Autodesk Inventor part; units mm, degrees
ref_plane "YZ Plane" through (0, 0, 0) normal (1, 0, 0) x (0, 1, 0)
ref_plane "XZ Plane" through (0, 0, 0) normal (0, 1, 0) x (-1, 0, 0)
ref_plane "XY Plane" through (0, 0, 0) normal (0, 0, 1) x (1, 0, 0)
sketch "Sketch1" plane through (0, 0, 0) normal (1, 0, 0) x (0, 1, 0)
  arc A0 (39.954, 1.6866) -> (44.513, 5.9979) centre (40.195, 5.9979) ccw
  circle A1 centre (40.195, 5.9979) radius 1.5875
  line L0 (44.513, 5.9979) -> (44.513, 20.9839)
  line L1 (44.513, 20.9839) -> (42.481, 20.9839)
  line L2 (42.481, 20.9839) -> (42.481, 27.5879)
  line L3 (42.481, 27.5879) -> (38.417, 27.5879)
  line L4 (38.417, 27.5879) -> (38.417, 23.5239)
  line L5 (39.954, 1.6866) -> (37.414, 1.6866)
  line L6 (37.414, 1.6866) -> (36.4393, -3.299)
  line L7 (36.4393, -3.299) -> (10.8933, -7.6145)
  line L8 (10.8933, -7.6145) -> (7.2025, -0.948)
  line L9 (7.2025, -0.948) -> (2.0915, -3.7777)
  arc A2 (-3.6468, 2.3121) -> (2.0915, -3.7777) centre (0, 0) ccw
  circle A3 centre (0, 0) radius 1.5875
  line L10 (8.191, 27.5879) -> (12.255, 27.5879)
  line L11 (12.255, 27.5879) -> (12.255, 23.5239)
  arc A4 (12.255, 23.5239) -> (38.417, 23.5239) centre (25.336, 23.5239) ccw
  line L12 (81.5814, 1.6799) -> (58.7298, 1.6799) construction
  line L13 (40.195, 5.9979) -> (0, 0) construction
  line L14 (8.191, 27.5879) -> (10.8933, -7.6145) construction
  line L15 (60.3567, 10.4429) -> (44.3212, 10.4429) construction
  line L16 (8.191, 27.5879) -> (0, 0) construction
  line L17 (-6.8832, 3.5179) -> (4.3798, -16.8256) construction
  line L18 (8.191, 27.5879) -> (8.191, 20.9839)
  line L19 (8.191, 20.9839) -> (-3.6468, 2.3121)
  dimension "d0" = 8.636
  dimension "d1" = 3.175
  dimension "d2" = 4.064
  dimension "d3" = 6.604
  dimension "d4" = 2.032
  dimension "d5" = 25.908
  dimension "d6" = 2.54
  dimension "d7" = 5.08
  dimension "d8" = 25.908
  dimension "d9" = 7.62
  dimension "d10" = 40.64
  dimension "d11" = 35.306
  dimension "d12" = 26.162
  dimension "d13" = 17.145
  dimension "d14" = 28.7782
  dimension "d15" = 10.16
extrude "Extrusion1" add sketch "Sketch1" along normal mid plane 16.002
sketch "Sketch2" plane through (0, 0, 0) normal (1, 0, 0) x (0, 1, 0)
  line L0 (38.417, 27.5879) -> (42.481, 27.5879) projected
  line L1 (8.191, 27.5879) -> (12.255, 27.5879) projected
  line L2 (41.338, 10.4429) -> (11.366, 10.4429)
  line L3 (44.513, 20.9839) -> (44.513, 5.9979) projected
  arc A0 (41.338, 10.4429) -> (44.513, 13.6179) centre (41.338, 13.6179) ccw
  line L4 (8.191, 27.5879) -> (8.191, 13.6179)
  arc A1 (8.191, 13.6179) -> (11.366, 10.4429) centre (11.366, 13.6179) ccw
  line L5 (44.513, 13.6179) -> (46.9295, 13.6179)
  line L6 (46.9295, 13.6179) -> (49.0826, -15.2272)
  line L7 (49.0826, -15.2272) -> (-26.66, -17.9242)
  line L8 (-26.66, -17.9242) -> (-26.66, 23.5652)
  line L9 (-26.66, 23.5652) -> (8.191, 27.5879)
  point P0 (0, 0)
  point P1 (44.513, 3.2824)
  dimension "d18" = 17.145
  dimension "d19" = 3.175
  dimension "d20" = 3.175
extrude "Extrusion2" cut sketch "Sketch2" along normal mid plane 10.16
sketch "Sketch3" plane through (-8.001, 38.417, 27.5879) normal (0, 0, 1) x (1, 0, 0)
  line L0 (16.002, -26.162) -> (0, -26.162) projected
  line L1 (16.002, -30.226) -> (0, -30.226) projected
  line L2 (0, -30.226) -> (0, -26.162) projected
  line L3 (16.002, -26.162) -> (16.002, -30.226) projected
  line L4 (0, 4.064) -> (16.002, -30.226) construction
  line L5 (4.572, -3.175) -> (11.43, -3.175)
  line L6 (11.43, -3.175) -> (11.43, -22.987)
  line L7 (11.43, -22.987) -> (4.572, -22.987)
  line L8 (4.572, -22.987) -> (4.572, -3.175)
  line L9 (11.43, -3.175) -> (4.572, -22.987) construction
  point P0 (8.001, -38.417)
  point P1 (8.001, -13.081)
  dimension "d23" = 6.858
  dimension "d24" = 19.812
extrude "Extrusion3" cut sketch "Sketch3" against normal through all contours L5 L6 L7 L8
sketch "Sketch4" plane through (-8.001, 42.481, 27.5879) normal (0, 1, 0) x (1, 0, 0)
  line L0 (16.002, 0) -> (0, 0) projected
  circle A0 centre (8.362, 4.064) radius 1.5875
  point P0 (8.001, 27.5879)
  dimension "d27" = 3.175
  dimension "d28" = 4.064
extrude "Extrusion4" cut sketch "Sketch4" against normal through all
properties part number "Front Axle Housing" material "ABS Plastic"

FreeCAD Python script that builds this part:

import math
import FreeCAD as App
import Part
import Sketcher
from FreeCAD import Vector
Q = App.Units.Quantity

doc = App.newDocument("Part")
body = doc.addObject("PartDesign::Body", "Body")

# Sketch on YZ plane
sketch1 = doc.addObject("Sketcher::SketchObject", "Sketch")
body.addObject(sketch1)
sketch1.AttachmentSupport = (doc.YZ_Plane, [""])
sketch1.MapMode = "FlatFace"
sketch1.addGeometry([
    Part.LineSegment(Vector(37.4, 1.7, 0), Vector(40, 1.7, 0)),  # 0
    Part.ArcOfCircle(Part.Circle(Vector(40.2, 6, 0), Vector(0, 0, 1), 4.3), math.radians(-93), math.radians(0)),  # 1
    Part.LineSegment(Vector(44.5, 6, 0), Vector(44.5, 21, 0)),  # 2
    Part.LineSegment(Vector(44.5, 21, 0), Vector(42.5, 21, 0)),  # 3
    Part.LineSegment(Vector(42.5, 21, 0), Vector(42.5, 27.6, 0)),  # 4
    Part.LineSegment(Vector(42.5, 27.6, 0), Vector(38.4, 27.6, 0)),  # 5
    Part.LineSegment(Vector(38.4, 27.6, 0), Vector(38.4, 23.5, 0)),  # 6
    Part.ArcOfCircle(Part.Circle(Vector(25.3, 23.5, 0), Vector(0, 0, 1), 13.1), math.radians(180), math.radians(360)),  # 7
    Part.LineSegment(Vector(12.3, 23.5, 0), Vector(12.3, 27.6, 0)),  # 8
    Part.LineSegment(Vector(12.3, 27.6, 0), Vector(8.2, 27.6, 0)),  # 9
    Part.LineSegment(Vector(8.2, 27.6, 0), Vector(8.2, 21, 0)),  # 10
    Part.LineSegment(Vector(8.2, 21, 0), Vector(-3.6, 2.3, 0)),  # 11
    Part.ArcOfCircle(Part.Circle(Vector(0, 0, 0), Vector(0, 0, 1), 4.3), math.radians(148), math.radians(299)),  # 12
    Part.LineSegment(Vector(2.1, -3.8, 0), Vector(7.2, -0.9, 0)),  # 13
    Part.LineSegment(Vector(7.2, -0.9, 0), Vector(10.9, -7.6, 0)),  # 14
    Part.LineSegment(Vector(10.9, -7.6, 0), Vector(36.4, -3.3, 0)),  # 15
    Part.LineSegment(Vector(36.4, -3.3, 0), Vector(37.4, 1.7, 0)),  # 16
    Part.Circle(Vector(0, 0, 0), Vector(0, 0, 1), 1.6),  # 17
    Part.Circle(Vector(40.2, 6, 0), Vector(0, 0, 1), 1.6),  # 18
], False)
sketch1.addConstraint([
    Sketcher.Constraint("Coincident", 0, 2, 1, 1),
    Sketcher.Constraint("Tangent", 1, 2, 2, 1),
    Sketcher.Constraint("Coincident", 2, 2, 3, 1),
    Sketcher.Constraint("Coincident", 3, 2, 4, 1),
    Sketcher.Constraint("Coincident", 4, 2, 5, 1),
    Sketcher.Constraint("Coincident", 5, 2, 6, 1),
    Sketcher.Constraint("Tangent", 6, 2, 7, 2),
    Sketcher.Constraint("Tangent", 7, 1, 8, 1),
    Sketcher.Constraint("Coincident", 8, 2, 9, 1),
    Sketcher.Constraint("Coincident", 9, 2, 10, 1),
    Sketcher.Constraint("Coincident", 10, 2, 11, 1),
    Sketcher.Constraint("Tangent", 11, 2, 12, 1),
    Sketcher.Constraint("Tangent", 12, 2, 13, 1),
    Sketcher.Constraint("Coincident", 13, 2, 14, 1),
    Sketcher.Constraint("Coincident", 14, 2, 15, 1),
    Sketcher.Constraint("Coincident", 15, 2, 16, 1),
    Sketcher.Constraint("Coincident", 16, 2, 0, 1),
    Sketcher.Constraint("Horizontal", 0),
    Sketcher.Constraint("Vertical", 2),
    Sketcher.Constraint("Horizontal", 3),
    Sketcher.Constraint("Vertical", 4),
    Sketcher.Constraint("Horizontal", 5),
    Sketcher.Constraint("Vertical", 6),
    Sketcher.Constraint("Vertical", 8),
    Sketcher.Constraint("Horizontal", 9),
    Sketcher.Constraint("Vertical", 10),
    Sketcher.Constraint("Coincident", 12, 3, -1, 1),
    Sketcher.Constraint("Coincident", 17, 3, -1, 1),
    Sketcher.Constraint("Coincident", 18, 3, 1, 3),
    Sketcher.Constraint("Equal", 1, 12),
    Sketcher.Constraint("Equal", 17, 18),
    Sketcher.Constraint("Perpendicular", 13, 14),
    Sketcher.Constraint("Horizontal", 5, 2, 8, 2),
    Sketcher.Constraint("Horizontal", 3, 2, 10, 2),
    Sketcher.Constraint("Equal", 5, 9),
    Sketcher.Constraint("Equal", 9, 6),
    Sketcher.Constraint("Radius", 1, Q("0.17 in")),
    Sketcher.Constraint("Diameter", 17, Q("0.125 in")),
    Sketcher.Constraint("DistanceX", 0, 1, 0, 2, Q("0.1 in")),
    Sketcher.Constraint("Radius", 7, Q("0.515 in")),
    Sketcher.Constraint("Distance", 14, Q("0.3 in")),
    Sketcher.Constraint("Distance", 16, Q("0.2 in")),
    Sketcher.Constraint("DistanceX", 3, 2, 3, 1, Q("0.08 in")),
    Sketcher.Constraint("DistanceX", 5, 2, 5, 1, Q("0.16 in")),
    Sketcher.Constraint("DistanceY", 4, 1, 4, 2, Q("0.26 in")),
    Sketcher.Constraint("Distance", 15, Q("1.02 in")),
    Sketcher.Constraint("DistanceY", 2, 1, 2, 2, Q("0.59 in")),
    Sketcher.Constraint("Distance", 13, Q("0.23 in")),
    Sketcher.Constraint("Angle", 13, Q("28.971 deg")),
    Sketcher.Constraint("DistanceX", -1, 1, 0, 2, Q("1.573 in")),
    Sketcher.Constraint("Distance", 11, Q("0.8704 in")),
    Sketcher.Constraint("DistanceY", -1, 1, 0, 2, Q("0.0664 in")),
])
pad1 = doc.addObject("PartDesign::Pad", "Pad")
body.addObject(pad1)
pad1.Profile = sketch1
pad1.Length = Q("0.63 in")
pad1.Midplane = True

# Sketch on YZ plane
sketch2 = doc.addObject("Sketcher::SketchObject", "Sketch001")
body.addObject(sketch2)
sketch2.AttachmentSupport = (doc.YZ_Plane, [""])
sketch2.MapMode = "FlatFace"
sketch2.addGeometry([
    Part.ArcOfCircle(Part.Circle(Vector(41.3, 13.6, 0), Vector(0, 0, 1), 3.2), math.radians(-90), math.radians(0)),  # 0
    Part.LineSegment(Vector(41.3, 10.4, 0), Vector(11.4, 10.4, 0)),  # 1
    Part.ArcOfCircle(Part.Circle(Vector(11.4, 13.6, 0), Vector(0, 0, 1), 3.2), math.radians(180), math.radians(270)),  # 2
    Part.LineSegment(Vector(8.2, 13.6, 0), Vector(8.2, 27.6, 0)),  # 3
    Part.LineSegment(Vector(8.2, 27.6, 0), Vector(-26.7, 23.6, 0)),  # 4
    Part.LineSegment(Vector(-26.7, 23.6, 0), Vector(-26.7, -17.9, 0)),  # 5
    Part.LineSegment(Vector(-26.7, -17.9, 0), Vector(49.1, -15.2, 0)),  # 6
    Part.LineSegment(Vector(49.1, -15.2, 0), Vector(46.9, 13.6, 0)),  # 7
    Part.LineSegment(Vector(46.9, 13.6, 0), Vector(44.5, 13.6, 0)),  # 8
], False)
sketch2.addConstraint([
    Sketcher.Constraint("Tangent", 0, 1, 1, 1),
    Sketcher.Constraint("Tangent", 1, 2, 2, 2),
    Sketcher.Constraint("Tangent", 2, 1, 3, 1),
    Sketcher.Constraint("Coincident", 3, 2, 4, 1),
    Sketcher.Constraint("Coincident", 4, 2, 5, 1),
    Sketcher.Constraint("Coincident", 5, 2, 6, 1),
    Sketcher.Constraint("Coincident", 6, 2, 7, 1),
    Sketcher.Constraint("Coincident", 7, 2, 8, 1),
    Sketcher.Constraint("Coincident", 8, 2, 0, 2),
    Sketcher.Constraint("Horizontal", 1),
    Sketcher.Constraint("Vertical", 3),
    Sketcher.Constraint("Vertical", 5),
    Sketcher.Constraint("Horizontal", 8),
    Sketcher.Constraint("Equal", 0, 2),
    Sketcher.Constraint("Horizontal", 2, 1, 7, 2),
    Sketcher.Constraint("Radius", 0, Q("0.125 in")),
    Sketcher.Constraint("DistanceY", 1, 2, 3, 2, Q("0.675 in")),
    Sketcher.Constraint("DistanceX", 1, 2, 1, 1, Q("1.18 in")),
    Sketcher.Constraint("Angle", 6, Q("2.0393 deg")),
    Sketcher.Constraint("Angle", 7, Q("94.2688 deg")),
    Sketcher.Constraint("Distance", 4, Q("1.3812 in")),
    Sketcher.Constraint("Distance", 7, Q("1.1388 in")),
    Sketcher.Constraint("DistanceX", 8, 2, 8, 1, Q("2.4165 mm")),
    Sketcher.Constraint("DistanceY", 5, 2, 5, 1, Q("41.4894 mm")),
    Sketcher.Constraint("DistanceX", 4, 2, -1, 1, Q("1.0496 in")),
    Sketcher.Constraint("DistanceY", 6, 2, -1, 1, Q("0.5995 in")),
])
pocket1 = doc.addObject("PartDesign::Pocket", "Pocket")
body.addObject(pocket1)
pocket1.Profile = sketch2
pocket1.Length = Q("0.4 in")
pocket1.Midplane = True

# Sketch on XY plane
sketch3 = doc.addObject("Sketcher::SketchObject", "Sketch002")
body.addObject(sketch3)
sketch3.AttachmentSupport = (doc.XY_Plane, [""])
sketch3.MapMode = "FlatFace"
sketch3.AttachmentOffset = App.Placement(Vector(0, 0, 27.5879), App.Rotation())
sketch3.addGeometry([
    Part.LineSegment(Vector(3, 35, 0), Vector(-3, 35, 0)),
    Part.LineSegment(Vector(-3, 35, 0), Vector(-3, 15, 0)),
    Part.LineSegment(Vector(-3, 15, 0), Vector(3, 15, 0)),
    Part.LineSegment(Vector(3, 15, 0), Vector(3, 35, 0)),
], False)
sketch3.addConstraint([
    Sketcher.Constraint("Coincident", 0, 2, 1, 1),
    Sketcher.Constraint("Coincident", 1, 2, 2, 1),
    Sketcher.Constraint("Coincident", 2, 2, 3, 1),
    Sketcher.Constraint("Coincident", 3, 2, 0, 1),
    Sketcher.Constraint("Horizontal", 0),
    Sketcher.Constraint("Vertical", 1),
    Sketcher.Constraint("Horizontal", 2),
    Sketcher.Constraint("Vertical", 3),
    Sketcher.Constraint("DistanceX", 0, 2, 0, 1, Q("0.27 in")),
    Sketcher.Constraint("DistanceY", 1, 2, 1, 1, Q("0.78 in")),
    Sketcher.Constraint("DistanceX", 0, 2, -1, 1, Q("0.135 in")),
    Sketcher.Constraint("DistanceY", -1, 1, 0, 2, Q("35.242 mm")),
])
pocket2 = doc.addObject("PartDesign::Pocket", "Pocket001")
body.addObject(pocket2)
pocket2.Profile = sketch3
pocket2.Type = "ThroughAll"

# Sketch on XZ plane
sketch4 = doc.addObject("Sketcher::SketchObject", "Sketch003")
body.addObject(sketch4)
sketch4.AttachmentSupport = (doc.XZ_Plane, [""])
sketch4.MapMode = "FlatFace"
sketch4.AttachmentOffset = App.Placement(Vector(0, 0, -42.481), App.Rotation())
sketch4.addGeometry(Part.Circle(Vector(0.4, 23.5, 0), Vector(0, 0, 1), 1.6), False)
sketch4.addConstraint([
    Sketcher.Constraint("Diameter", 0, Q("0.125 in")),
    Sketcher.Constraint("DistanceX", -1, 1, 0, 3, Q("0.361 mm")),
    Sketcher.Constraint("DistanceY", -1, 1, 0, 3, Q("23.524 mm")),
])
pocket3 = doc.addObject("PartDesign::Pocket", "Pocket002")
body.addObject(pocket3)
pocket3.Profile = sketch4
pocket3.Type = "ThroughAll"
pocket3.Reversed = True

doc.recompute()
